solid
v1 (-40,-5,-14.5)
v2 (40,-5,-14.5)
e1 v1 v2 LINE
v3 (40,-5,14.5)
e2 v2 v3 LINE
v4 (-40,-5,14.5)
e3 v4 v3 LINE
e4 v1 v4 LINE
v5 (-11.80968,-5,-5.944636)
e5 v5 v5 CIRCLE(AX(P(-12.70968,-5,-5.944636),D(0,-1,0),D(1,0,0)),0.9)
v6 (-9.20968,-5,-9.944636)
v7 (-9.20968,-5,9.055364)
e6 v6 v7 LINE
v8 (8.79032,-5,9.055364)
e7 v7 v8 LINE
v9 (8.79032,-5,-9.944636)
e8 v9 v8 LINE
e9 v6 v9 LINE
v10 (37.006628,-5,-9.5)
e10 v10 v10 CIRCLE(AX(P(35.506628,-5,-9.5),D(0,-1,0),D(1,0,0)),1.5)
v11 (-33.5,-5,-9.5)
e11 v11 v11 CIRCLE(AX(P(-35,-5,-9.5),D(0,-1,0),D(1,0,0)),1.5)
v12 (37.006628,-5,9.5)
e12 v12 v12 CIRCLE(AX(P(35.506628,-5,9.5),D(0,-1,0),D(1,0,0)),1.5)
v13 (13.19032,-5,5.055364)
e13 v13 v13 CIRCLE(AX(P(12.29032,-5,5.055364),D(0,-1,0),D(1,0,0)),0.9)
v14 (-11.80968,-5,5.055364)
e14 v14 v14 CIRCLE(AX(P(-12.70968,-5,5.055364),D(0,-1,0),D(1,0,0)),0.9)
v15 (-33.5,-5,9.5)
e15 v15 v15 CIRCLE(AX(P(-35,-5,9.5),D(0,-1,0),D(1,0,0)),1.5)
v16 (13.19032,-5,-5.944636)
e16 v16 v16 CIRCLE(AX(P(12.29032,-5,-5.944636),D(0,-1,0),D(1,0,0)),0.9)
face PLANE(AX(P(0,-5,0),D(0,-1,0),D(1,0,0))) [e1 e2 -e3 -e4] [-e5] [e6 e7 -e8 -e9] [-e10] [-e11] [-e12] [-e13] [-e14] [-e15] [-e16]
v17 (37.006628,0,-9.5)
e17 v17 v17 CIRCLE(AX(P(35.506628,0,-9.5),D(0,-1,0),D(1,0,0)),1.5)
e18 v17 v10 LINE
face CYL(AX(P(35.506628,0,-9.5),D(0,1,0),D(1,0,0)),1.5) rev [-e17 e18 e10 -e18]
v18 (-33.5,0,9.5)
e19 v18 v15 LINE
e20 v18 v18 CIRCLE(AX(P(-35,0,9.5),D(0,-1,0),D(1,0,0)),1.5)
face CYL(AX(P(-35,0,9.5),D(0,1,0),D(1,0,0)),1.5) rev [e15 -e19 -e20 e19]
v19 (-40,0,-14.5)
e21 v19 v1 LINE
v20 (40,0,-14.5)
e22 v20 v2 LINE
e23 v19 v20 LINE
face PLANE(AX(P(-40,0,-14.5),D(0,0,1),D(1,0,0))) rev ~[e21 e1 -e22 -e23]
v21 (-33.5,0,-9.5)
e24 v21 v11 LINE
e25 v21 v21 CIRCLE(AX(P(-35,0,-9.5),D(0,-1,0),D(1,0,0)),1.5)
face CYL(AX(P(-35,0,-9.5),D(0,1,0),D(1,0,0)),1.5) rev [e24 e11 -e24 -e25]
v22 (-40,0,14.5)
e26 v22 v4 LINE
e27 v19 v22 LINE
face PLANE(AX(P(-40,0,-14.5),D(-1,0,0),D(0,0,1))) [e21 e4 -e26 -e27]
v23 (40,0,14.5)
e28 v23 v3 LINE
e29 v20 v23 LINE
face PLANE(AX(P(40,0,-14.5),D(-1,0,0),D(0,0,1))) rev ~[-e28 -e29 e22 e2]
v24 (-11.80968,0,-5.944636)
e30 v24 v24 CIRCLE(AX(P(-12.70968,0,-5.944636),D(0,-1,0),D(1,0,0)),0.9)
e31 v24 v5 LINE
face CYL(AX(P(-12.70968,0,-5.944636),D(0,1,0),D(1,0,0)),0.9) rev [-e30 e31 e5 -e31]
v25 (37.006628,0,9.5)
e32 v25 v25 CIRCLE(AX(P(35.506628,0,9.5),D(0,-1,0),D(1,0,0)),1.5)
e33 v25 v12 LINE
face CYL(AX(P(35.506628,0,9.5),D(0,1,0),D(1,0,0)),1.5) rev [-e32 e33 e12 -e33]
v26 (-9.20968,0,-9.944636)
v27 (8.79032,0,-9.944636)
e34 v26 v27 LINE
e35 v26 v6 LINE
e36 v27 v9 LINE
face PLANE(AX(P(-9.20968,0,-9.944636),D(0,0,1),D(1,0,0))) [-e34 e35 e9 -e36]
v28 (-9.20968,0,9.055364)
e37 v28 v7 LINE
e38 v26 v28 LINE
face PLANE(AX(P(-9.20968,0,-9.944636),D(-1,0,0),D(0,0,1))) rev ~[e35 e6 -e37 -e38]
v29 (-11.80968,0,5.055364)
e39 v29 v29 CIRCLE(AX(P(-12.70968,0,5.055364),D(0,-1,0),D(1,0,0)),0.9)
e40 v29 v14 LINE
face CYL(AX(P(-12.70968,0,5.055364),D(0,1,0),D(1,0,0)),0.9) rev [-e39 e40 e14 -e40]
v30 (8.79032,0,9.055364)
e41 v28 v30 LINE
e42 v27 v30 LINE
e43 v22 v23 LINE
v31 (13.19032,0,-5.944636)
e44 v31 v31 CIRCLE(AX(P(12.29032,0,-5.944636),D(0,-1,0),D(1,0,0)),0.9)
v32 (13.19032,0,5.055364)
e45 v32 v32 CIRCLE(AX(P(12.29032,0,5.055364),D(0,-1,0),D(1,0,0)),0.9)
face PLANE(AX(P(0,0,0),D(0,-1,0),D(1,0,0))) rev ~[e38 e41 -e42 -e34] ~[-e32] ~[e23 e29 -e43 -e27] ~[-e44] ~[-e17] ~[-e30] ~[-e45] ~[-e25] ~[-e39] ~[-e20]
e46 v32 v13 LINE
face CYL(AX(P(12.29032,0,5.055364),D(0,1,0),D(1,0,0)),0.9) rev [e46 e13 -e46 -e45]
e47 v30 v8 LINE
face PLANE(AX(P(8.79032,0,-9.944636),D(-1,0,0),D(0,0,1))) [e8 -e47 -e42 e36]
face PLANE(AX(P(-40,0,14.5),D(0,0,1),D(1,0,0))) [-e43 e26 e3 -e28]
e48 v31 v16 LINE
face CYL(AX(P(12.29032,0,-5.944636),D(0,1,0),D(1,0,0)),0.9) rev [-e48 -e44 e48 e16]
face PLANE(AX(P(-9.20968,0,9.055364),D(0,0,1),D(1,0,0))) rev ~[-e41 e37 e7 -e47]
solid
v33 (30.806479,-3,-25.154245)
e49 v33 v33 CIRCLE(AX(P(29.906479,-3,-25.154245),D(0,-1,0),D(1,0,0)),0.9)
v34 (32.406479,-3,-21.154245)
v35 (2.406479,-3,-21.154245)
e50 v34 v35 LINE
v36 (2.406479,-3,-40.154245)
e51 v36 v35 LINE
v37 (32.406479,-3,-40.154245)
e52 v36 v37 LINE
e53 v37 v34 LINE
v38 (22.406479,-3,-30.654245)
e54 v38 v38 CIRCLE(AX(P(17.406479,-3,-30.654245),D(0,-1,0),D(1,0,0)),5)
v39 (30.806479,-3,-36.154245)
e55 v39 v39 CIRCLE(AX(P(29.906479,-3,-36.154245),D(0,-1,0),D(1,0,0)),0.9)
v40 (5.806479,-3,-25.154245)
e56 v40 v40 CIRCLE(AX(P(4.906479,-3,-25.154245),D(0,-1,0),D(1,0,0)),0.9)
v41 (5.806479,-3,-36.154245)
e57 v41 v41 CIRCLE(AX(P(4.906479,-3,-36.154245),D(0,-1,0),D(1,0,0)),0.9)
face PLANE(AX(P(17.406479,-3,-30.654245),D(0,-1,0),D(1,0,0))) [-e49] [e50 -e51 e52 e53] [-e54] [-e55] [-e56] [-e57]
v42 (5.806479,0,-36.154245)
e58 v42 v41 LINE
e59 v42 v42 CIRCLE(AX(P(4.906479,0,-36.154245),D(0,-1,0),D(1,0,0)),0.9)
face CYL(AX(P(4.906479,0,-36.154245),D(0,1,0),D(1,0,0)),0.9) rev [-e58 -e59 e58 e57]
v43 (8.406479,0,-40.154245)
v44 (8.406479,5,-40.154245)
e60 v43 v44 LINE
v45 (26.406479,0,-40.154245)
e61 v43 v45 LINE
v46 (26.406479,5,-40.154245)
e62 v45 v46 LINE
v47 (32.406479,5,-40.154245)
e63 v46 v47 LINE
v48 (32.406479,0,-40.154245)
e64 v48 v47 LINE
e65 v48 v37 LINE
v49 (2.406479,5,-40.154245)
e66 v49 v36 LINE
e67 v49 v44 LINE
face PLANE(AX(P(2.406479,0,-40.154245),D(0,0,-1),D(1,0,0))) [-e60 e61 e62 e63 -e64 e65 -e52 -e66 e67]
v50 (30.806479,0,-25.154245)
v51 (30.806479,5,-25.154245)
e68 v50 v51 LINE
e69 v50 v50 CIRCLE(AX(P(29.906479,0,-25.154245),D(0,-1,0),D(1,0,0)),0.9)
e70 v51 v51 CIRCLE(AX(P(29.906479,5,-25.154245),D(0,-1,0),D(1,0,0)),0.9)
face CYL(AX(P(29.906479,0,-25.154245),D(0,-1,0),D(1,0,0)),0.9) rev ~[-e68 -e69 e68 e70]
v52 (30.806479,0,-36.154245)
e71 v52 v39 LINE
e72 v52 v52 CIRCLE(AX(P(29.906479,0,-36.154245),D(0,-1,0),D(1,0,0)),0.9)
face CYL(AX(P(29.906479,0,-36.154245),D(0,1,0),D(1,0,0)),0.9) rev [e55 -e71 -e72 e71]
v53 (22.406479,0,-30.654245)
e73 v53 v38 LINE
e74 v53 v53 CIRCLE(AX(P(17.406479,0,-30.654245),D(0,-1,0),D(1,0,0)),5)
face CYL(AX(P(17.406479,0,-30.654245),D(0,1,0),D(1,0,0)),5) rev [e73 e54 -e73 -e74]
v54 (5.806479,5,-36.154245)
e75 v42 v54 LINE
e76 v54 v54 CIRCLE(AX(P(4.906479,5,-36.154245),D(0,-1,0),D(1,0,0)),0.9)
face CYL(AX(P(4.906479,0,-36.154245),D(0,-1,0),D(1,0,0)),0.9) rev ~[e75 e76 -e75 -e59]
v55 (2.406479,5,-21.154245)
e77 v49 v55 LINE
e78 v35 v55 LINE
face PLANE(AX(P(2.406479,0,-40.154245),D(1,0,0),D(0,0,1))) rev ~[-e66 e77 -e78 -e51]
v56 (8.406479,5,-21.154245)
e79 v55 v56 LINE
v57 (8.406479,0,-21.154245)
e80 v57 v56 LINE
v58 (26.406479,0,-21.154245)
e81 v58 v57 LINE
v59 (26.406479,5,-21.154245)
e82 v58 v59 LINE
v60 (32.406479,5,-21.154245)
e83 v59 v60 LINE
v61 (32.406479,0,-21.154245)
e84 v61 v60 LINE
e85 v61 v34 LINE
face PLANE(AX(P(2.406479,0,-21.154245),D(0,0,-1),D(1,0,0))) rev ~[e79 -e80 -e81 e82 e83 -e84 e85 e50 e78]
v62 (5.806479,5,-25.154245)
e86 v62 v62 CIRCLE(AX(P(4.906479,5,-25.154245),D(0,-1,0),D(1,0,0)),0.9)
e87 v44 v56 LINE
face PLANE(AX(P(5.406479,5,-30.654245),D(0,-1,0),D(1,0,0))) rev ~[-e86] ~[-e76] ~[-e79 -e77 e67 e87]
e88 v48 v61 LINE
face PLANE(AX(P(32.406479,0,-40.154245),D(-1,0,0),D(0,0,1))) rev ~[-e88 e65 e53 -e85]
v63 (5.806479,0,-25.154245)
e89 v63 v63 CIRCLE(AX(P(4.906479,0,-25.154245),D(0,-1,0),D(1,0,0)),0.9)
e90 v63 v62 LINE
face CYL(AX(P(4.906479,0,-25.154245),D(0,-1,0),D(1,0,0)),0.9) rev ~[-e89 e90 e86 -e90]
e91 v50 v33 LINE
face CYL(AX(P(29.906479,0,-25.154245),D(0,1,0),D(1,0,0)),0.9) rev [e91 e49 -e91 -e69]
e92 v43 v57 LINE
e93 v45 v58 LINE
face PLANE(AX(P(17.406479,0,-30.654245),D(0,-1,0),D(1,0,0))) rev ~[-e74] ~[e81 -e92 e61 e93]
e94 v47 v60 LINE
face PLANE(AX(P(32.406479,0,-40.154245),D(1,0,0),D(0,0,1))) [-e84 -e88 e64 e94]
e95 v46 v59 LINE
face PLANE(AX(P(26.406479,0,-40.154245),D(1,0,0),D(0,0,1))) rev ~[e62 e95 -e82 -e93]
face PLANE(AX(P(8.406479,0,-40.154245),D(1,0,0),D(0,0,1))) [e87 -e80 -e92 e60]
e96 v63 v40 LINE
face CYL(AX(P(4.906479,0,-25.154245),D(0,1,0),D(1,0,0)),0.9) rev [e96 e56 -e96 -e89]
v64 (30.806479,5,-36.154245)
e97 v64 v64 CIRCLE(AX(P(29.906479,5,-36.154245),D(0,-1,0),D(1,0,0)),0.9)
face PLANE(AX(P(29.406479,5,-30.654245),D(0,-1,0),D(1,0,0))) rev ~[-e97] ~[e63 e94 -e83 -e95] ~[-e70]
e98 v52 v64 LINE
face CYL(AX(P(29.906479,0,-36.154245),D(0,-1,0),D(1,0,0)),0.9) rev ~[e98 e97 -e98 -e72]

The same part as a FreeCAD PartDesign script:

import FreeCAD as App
import Part
import Sketcher


def add_polygon(sketch, points):
    """Adds a closed chain of lines whose ends are joined by coincident constraints."""
    first, n = sketch.GeometryCount, len(points)
    for a, b in zip(points, points[1:] + points[:1]):
        sketch.addGeometry(Part.LineSegment(App.Vector(*a, 0), App.Vector(*b, 0)), False)
    for i in range(n):
        sketch.addConstraint(Sketcher.Constraint("Coincident", first + i, 2, first + (i + 1) % n, 1))

doc = App.newDocument("Part")
body = doc.addObject("PartDesign::Body", "Body")

# Sketch on XZ plane
sketch1 = body.newObject("Sketcher::SketchObject", "Sketch")
sketch1.AttachmentSupport = (doc.getObject("XZ_Plane"), [""])
sketch1.MapMode = "FlatFace"
add_polygon(sketch1, [(-40, 14.5), (-40, -14.5), (40, -14.5), (40, 14.5)])  # lines 0-3
sketch1.addGeometry(Part.Circle(App.Vector(-35, -9.5, 0), App.Vector(0, 0, 1), 1.5), False)  # 4
sketch1.addGeometry(Part.Circle(App.Vector(-12.7, -5.9, 0), App.Vector(0, 0, 1), 0.9), False)  # 5
add_polygon(sketch1, [(8.8, -9.9), (-9.2, -9.9), (-9.2, 9.1), (8.8, 9.1)])  # lines 6-9
sketch1.addGeometry(Part.Circle(App.Vector(12.3, -5.9, 0), App.Vector(0, 0, 1), 0.9), False)  # 10
sketch1.addGeometry(Part.Circle(App.Vector(35.5, -9.5, 0), App.Vector(0, 0, 1), 1.5), False)  # 11
sketch1.addGeometry(Part.Circle(App.Vector(-12.7, 5.1, 0), App.Vector(0, 0, 1), 0.9), False)  # 12
sketch1.addGeometry(Part.Circle(App.Vector(-35, 9.5, 0), App.Vector(0, 0, 1), 1.5), False)  # 13
sketch1.addGeometry(Part.Circle(App.Vector(12.3, 5.1, 0), App.Vector(0, 0, 1), 0.9), False)  # 14
sketch1.addGeometry(Part.Circle(App.Vector(35.5, 9.5, 0), App.Vector(0, 0, 1), 1.5), False)  # 15
sketch1.addConstraint([
    Sketcher.Constraint("Vertical", 0),
    Sketcher.Constraint("Horizontal", 1),
    Sketcher.Constraint("Vertical", 2),
    Sketcher.Constraint("Horizontal", 3),
    Sketcher.Constraint("Horizontal", 6),
    Sketcher.Constraint("Vertical", 7),
    Sketcher.Constraint("Horizontal", 8),
    Sketcher.Constraint("Vertical", 9),
    Sketcher.Constraint("Equal", 5, 10),
    Sketcher.Constraint("Equal", 4, 11),
    Sketcher.Constraint("Equal", 10, 12),
    Sketcher.Constraint("Equal", 11, 13),
    Sketcher.Constraint("Equal", 12, 14),
    Sketcher.Constraint("Equal", 13, 15),
    Sketcher.Constraint("Symmetric", 0, 2, 2, 2, -1, 1),
    Sketcher.Constraint("Symmetric", 4, 3, 13, 3, -1),
    Sketcher.Constraint("Symmetric", 11, 3, 15, 3, -1),
    Sketcher.Constraint("Horizontal", 5, 3, 10, 3),
    Sketcher.Constraint("Horizontal", 4, 3, 11, 3),
    Sketcher.Constraint("Horizontal", 12, 3, 14, 3),
    Sketcher.Constraint("Vertical", 5, 3, 12, 3),
    Sketcher.Constraint("Vertical", 10, 3, 14, 3),
    Sketcher.Constraint("Diameter", 4, 3.0),
    Sketcher.Constraint("Diameter", 5, 1.8),
    Sketcher.Constraint("DistanceX", 1, 1, 1, 2, 80.0),
    Sketcher.Constraint("DistanceX", 6, 2, 6, 1, 18.0),
    Sketcher.Constraint("DistanceY", 0, 2, 0, 1, 29.0),
    Sketcher.Constraint("DistanceY", 7, 1, 7, 2, 19.0),
    Sketcher.Constraint("DistanceX", 4, 3, -1, 1, 35.0),
    Sketcher.Constraint("DistanceX", 5, 3, 10, 3, 25.0),
    Sketcher.Constraint("DistanceY", 5, 3, 12, 3, 11.0),
    Sketcher.Constraint("DistanceY", 4, 3, 13, 3, 19.0),
    Sketcher.Constraint("DistanceY", 6, 2, 5, 3, 4.0),
    Sketcher.Constraint("DistanceX", 5, 3, 6, 2, 3.5),
    Sketcher.Constraint("DistanceX", 5, 3, -1, 1, 12.70968),
    Sketcher.Constraint("DistanceX", 4, 3, 11, 3, 70.506628),
    Sketcher.Constraint("DistanceY", 5, 3, -1, 1, 5.944636),
])
pad1 = body.newObject("PartDesign::Pad", "Pad")
pad1.Profile = sketch1
pad1.Length = 5
body2 = doc.addObject("PartDesign::Body", "Body001")

# Sketch on XZ plane
sketch2 = body2.newObject("Sketcher::SketchObject", "Sketch001")
sketch2.AttachmentSupport = (doc.getObject("XZ_Plane001"), [""])
sketch2.MapMode = "FlatFace"
add_polygon(sketch2, [(2.4, -40.2), (32.4, -40.2), (32.4, -21.2), (2.4, -21.2)])  # lines 0-3
sketch2.addGeometry(Part.Circle(App.Vector(4.9, -36.2, 0), App.Vector(0, 0, 1), 0.9), False)  # 4
sketch2.addGeometry(Part.Circle(App.Vector(29.9, -36.2, 0), App.Vector(0, 0, 1), 0.9), False)  # 5
sketch2.addGeometry(Part.Circle(App.Vector(4.9, -25.2, 0), App.Vector(0, 0, 1), 0.9), False)  # 6
sketch2.addGeometry(Part.Circle(App.Vector(17.4, -30.7, 0), App.Vector(0, 0, 1), 5), False)  # 7
sketch2.addGeometry(Part.Circle(App.Vector(29.9, -25.2, 0), App.Vector(0, 0, 1), 0.9), False)  # 8
sketch2.addConstraint([
    Sketcher.Constraint("Horizontal", 0),
    Sketcher.Constraint("Vertical", 1),
    Sketcher.Constraint("Horizontal", 2),
    Sketcher.Constraint("Vertical", 3),
    Sketcher.Constraint("Equal", 4, 5),
    Sketcher.Constraint("Equal", 5, 6),
    Sketcher.Constraint("Equal", 6, 8),
    Sketcher.Constraint("Horizontal", 4, 3, 5, 3),
    Sketcher.Constraint("Horizontal", 6, 3, 8, 3),
    Sketcher.Constraint("Vertical", 4, 3, 6, 3),
    Sketcher.Constraint("Vertical", 5, 3, 8, 3),
    Sketcher.Constraint("Diameter", 7, 10.0),
    Sketcher.Constraint("Diameter", 4, 1.8),
    Sketcher.Constraint("DistanceX", 0, 1, 0, 2, 30.0),
    Sketcher.Constraint("DistanceY", 1, 1, 1, 2, 19.0),
    Sketcher.Constraint("DistanceX", 4, 3, 5, 3, 25.0),
    Sketcher.Constraint("DistanceY", 4, 3, 6, 3, 11.0),
    Sketcher.Constraint("DistanceY", 0, 2, 5, 3, 4.0),
    Sketcher.Constraint("DistanceX", 7, 3, 0, 2, 15.0),
    Sketcher.Constraint("DistanceX", 6, 3, 7, 3, 12.5),
    Sketcher.Constraint("DistanceY", 7, 3, 6, 3, 5.5),
    Sketcher.Constraint("DistanceX", -1, 1, 4, 3, 4.906479),
    Sketcher.Constraint("DistanceY", 4, 3, -1, 1, 36.154245),
])
pad2 = body2.newObject("PartDesign::Pad", "Pad001")
pad2.Profile = sketch2
pad2.Length = 3

# Sketch on XZ plane
sketch3 = body2.newObject("Sketcher::SketchObject", "Sketch002")
sketch3.AttachmentSupport = (doc.getObject("XZ_Plane001"), [""])
sketch3.MapMode = "FlatFace"
add_polygon(sketch3, [(2.4, -21.2), (2.4, -40.2), (8.4, -40.2), (8.4, -21.2)])  # lines 0-3
sketch3.addGeometry(Part.Circle(App.Vector(4.9, -36.2, 0), App.Vector(0, 0, 1), 0.9), False)  # 4
sketch3.addGeometry(Part.Circle(App.Vector(4.9, -25.2, 0), App.Vector(0, 0, 1), 0.9), False)  # 5
add_polygon(sketch3, [(26.4, -21.2), (26.4, -40.2), (32.4, -40.2), (32.4, -21.2)])  # lines 6-9
sketch3.addGeometry(Part.Circle(App.Vector(29.9, -36.2, 0), App.Vector(0, 0, 1), 0.9), False)  # 10
sketch3.addGeometry(Part.Circle(App.Vector(29.9, -25.2, 0), App.Vector(0, 0, 1), 0.9), False)  # 11
sketch3.addConstraint([
    Sketcher.Constraint("Vertical", 0),
    Sketcher.Constraint("Horizontal", 1),
    Sketcher.Constraint("Vertical", 2),
    Sketcher.Constraint("Horizontal", 3),
    Sketcher.Constraint("Vertical", 6),
    Sketcher.Constraint("Horizontal", 7),
    Sketcher.Constraint("Vertical", 8),
    Sketcher.Constraint("Horizontal", 9),
    Sketcher.Constraint("Equal", 4, 5),
    Sketcher.Constraint("Equal", 5, 10),
    Sketcher.Constraint("Equal", 10, 11),
    Sketcher.Constraint("Horizontal", 4, 3, 10, 3),
    Sketcher.Constraint("Horizontal", 5, 3, 11, 3),
    Sketcher.Constraint("Horizontal", 1, 2, 6, 2),
    Sketcher.Constraint("Horizontal", 3, 2, 8, 2),
    Sketcher.Constraint("Vertical", 4, 3, 5, 3),
    Sketcher.Constraint("Vertical", 10, 3, 11, 3),
    Sketcher.Constraint("Equal", 3, 7),
    Sketcher.Constraint("Diameter", 4, 1.8),
    Sketcher.Constraint("DistanceX", 1, 1, 1, 2, 6.0),
    Sketcher.Constraint("DistanceY", 0, 2, 0, 1, 19.0),
    Sketcher.Constraint("DistanceY", 4, 3, 5, 3, 11.0),
    Sketcher.Constraint("DistanceX", 4, 3, 10, 3, 25.0),
    Sketcher.Constraint("DistanceY", 0, 2, 4, 3, 4.0),
    Sketcher.Constraint("DistanceX", 1, 2, 6, 2, 18.0),
    Sketcher.Constraint("DistanceX", 0, 2, 4, 3, 2.5),
    Sketcher.Constraint("DistanceX", -1, 1, 4, 3, 4.906479),
    Sketcher.Constraint("DistanceY", 4, 3, -1, 1, 36.154245),
])
pad3 = body2.newObject("PartDesign::Pad", "Pad002")
pad3.Profile = sketch3
pad3.Length = 5
pad3.Reversed = True

doc.recompute()
